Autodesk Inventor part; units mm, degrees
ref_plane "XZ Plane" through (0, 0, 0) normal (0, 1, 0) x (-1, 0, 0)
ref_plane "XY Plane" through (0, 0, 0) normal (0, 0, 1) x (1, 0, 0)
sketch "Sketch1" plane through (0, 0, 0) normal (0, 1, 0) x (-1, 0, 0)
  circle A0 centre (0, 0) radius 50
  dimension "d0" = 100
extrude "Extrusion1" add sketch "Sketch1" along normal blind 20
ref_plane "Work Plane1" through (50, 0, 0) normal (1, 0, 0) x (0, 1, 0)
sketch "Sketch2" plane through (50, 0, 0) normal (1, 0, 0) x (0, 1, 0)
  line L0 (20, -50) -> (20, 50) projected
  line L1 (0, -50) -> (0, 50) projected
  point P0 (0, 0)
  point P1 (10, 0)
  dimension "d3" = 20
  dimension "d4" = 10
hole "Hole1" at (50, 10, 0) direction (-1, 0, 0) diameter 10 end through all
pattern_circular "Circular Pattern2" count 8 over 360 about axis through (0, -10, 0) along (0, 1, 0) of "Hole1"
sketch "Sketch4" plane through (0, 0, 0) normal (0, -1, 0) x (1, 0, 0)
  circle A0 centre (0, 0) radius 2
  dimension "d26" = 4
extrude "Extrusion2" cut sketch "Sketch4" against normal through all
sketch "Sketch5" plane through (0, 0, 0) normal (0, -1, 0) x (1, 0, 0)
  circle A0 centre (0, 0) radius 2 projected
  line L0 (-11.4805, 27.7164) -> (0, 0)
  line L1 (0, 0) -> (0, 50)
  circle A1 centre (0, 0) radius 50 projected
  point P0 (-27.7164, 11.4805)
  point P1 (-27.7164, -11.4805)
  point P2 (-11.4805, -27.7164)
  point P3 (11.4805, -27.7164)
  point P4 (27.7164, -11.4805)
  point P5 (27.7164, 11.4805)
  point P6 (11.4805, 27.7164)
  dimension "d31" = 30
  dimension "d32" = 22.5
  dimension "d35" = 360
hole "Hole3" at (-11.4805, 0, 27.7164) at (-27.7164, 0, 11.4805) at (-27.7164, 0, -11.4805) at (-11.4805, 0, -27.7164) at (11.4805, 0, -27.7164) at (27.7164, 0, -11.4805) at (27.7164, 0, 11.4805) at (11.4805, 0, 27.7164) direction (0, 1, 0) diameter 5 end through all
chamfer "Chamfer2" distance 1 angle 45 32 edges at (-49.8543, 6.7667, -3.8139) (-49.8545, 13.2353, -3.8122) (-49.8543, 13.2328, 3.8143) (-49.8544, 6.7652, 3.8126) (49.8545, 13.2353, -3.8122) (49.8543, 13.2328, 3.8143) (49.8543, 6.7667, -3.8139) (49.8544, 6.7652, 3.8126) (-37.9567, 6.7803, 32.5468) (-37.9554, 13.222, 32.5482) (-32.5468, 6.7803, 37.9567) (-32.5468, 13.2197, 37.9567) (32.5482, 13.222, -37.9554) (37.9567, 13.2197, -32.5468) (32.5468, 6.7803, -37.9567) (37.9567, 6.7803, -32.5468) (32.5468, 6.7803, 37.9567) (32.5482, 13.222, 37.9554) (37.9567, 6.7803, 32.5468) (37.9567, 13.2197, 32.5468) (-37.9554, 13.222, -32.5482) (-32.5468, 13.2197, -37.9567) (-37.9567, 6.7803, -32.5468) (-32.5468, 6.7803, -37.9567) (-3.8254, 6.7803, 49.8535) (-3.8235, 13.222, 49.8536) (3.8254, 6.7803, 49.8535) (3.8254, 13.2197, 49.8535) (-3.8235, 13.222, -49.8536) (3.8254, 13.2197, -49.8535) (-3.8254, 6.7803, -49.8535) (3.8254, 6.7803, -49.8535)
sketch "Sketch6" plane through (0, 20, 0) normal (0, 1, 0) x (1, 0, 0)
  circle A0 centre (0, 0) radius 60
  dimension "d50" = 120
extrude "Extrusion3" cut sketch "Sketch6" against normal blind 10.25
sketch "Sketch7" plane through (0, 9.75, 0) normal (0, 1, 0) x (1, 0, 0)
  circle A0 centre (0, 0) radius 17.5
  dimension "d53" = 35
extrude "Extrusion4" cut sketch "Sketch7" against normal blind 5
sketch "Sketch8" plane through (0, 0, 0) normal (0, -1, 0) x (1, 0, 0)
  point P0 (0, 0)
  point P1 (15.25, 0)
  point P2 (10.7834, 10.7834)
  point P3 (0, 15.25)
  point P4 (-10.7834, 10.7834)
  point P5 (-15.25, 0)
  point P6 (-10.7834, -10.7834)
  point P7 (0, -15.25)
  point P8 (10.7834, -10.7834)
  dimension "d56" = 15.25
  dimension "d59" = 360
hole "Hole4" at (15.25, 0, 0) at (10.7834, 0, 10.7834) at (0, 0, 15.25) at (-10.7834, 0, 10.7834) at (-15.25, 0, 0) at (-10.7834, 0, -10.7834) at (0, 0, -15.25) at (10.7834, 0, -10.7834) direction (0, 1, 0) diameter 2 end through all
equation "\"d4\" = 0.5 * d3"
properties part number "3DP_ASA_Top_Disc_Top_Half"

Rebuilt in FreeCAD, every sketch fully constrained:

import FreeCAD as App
import Part
import Sketcher

V = App.Vector
Q = App.Units.Quantity


def edges_at(feature, points):
    """Names of the edges that pass closest to the given points."""
    edges = feature.Shape.Edges
    near = lambda p: min(range(len(edges)), key=lambda i: edges[i].distToShape(Part.Vertex(*p))[0])
    return sorted({f"Edge{near(p) + 1}" for p in points})

doc = App.newDocument("Part")
body = doc.addObject("PartDesign::Body", "Body")

sketch1 = body.newObject("Sketcher::SketchObject", "Sketch")
sketch1.AttachmentSupport = (doc.getObject("XZ_Plane"), [""])
sketch1.MapMode = "FlatFace"
sketch1.addGeometry(Part.Circle(V(0, 0, 0), V(0, 0, 1), 50), False)
sketch1.addConstraint(Sketcher.Constraint("Coincident", 0, 3, -1, 1))
sketch1.addConstraint(Sketcher.Constraint("Diameter", 0, Q("100 mm")))
pad1 = body.newObject("PartDesign::Pad", "Pad")
pad1.Profile = sketch1
pad1.Length = 20
pad1.Reversed = True

sketch2 = body.newObject("Sketcher::SketchObject", "Sketch001")
sketch2.AttachmentSupport = (doc.getObject("YZ_Plane"), [""])
sketch2.MapMode = "FlatFace"
sketch2.AttachmentOffset = App.Placement(V(0, 0, 50), App.Rotation())
sketch2.addGeometry(Part.Circle(V(10, 0, 0), V(0, 0, 1), 5), False)
sketch2.addConstraint(Sketcher.Constraint("PointOnObject", 0, 3, -1))
sketch2.addConstraint(Sketcher.Constraint("Diameter", 0, Q("10 mm")))
sketch2.addConstraint(Sketcher.Constraint("DistanceX", -1, 1, 0, 3, Q("10 mm")))
doc.recompute()
hole = body.newObject("PartDesign::Hole", "Hole")
hole.Profile = sketch2
hole.ThreadType = "None"
hole.Diameter = 10
hole.DepthType = "ThroughAll"
doc.recompute()

polarpattern = body.newObject("PartDesign::PolarPattern", "PolarPattern")
polarpattern.Originals = [hole]
polarpattern.Axis = (doc.getObject("Y_Axis"), [""])
polarpattern.Angle = 360
polarpattern.Occurrences = 8
body.Tip = polarpattern

sketch3 = body.newObject("Sketcher::SketchObject", "Sketch002")
sketch3.AttachmentSupport = (doc.getObject("XZ_Plane"), [""])
sketch3.MapMode = "FlatFace"
sketch3.addGeometry(Part.Circle(V(0, 0, 0), V(0, 0, 1), 2), False)
sketch3.addConstraint(Sketcher.Constraint("Coincident", 0, 3, -1, 1))
sketch3.addConstraint(Sketcher.Constraint("Diameter", 0, Q("4 mm")))
pocket1 = body.newObject("PartDesign::Pocket", "Pocket")
pocket1.Profile = sketch3
pocket1.Type = "ThroughAll"

sketch4 = body.newObject("Sketcher::SketchObject", "Sketch003")
sketch4.AttachmentSupport = (doc.getObject("XZ_Plane"), [""])
sketch4.MapMode = "FlatFace"
sketch4.addGeometry(Part.Circle(V(-11.5, 27.7, 0), V(0, 0, 1), 2.5), False)
sketch4.addGeometry(Part.Circle(V(-27.7, 11.5, 0), V(0, 0, 1), 2.5), False)
sketch4.addGeometry(Part.Circle(V(-27.7, -11.5, 0), V(0, 0, 1), 2.5), False)
sketch4.addGeometry(Part.Circle(V(-11.5, -27.7, 0), V(0, 0, 1), 2.5), False)
sketch4.addGeometry(Part.Circle(V(11.5, -27.7, 0), V(0, 0, 1), 2.5), False)
sketch4.addGeometry(Part.Circle(V(27.7, -11.5, 0), V(0, 0, 1), 2.5), False)
sketch4.addGeometry(Part.Circle(V(27.7, 11.5, 0), V(0, 0, 1), 2.5), False)
sketch4.addGeometry(Part.Circle(V(11.5, 27.7, 0), V(0, 0, 1), 2.5), False)
sketch4.addConstraint(Sketcher.Constraint("Equal", 0, 1))
sketch4.addConstraint(Sketcher.Constraint("Equal", 1, 2))
sketch4.addConstraint(Sketcher.Constraint("Equal", 2, 3))
sketch4.addConstraint(Sketcher.Constraint("Equal", 3, 4))
sketch4.addConstraint(Sketcher.Constraint("Equal", 4, 5))
sketch4.addConstraint(Sketcher.Constraint("Equal", 5, 6))
sketch4.addConstraint(Sketcher.Constraint("Equal", 6, 7))
sketch4.addConstraint(Sketcher.Constraint("Symmetric", 0, 3, 4, 3, -1, 1))
sketch4.addConstraint(Sketcher.Constraint("Symmetric", 1, 3, 5, 3, -1, 1))
sketch4.addConstraint(Sketcher.Constraint("Symmetric", 2, 3, 6, 3, -1, 1))
sketch4.addConstraint(Sketcher.Constraint("Symmetric", 3, 3, 7, 3, -1, 1))
sketch4.addConstraint(Sketcher.Constraint("Symmetric", 3, 3, 4, 3, -2))
sketch4.addConstraint(Sketcher.Constraint("Symmetric", 2, 3, 5, 3, -2))
sketch4.addConstraint(Sketcher.Constraint("Diameter", 0, Q("5 mm")))
sketch4.addConstraint(Sketcher.Constraint("DistanceX", 1, 3, 0, 3, Q("16.236 mm")))
sketch4.addConstraint(Sketcher.Constraint("DistanceY", 1, 3, 0, 3, Q("16.236 mm")))
sketch4.addConstraint(Sketcher.Constraint("DistanceY", 2, 3, 1, 3, Q("22.961 mm")))
sketch4.addConstraint(Sketcher.Constraint("DistanceX", 3, 3, 4, 3, Q("22.961 mm")))
doc.recompute()
hole2 = body.newObject("PartDesign::Hole", "Hole001")
hole2.Profile = sketch4
hole2.ThreadType = "None"
hole2.Diameter = 5
hole2.DepthType = "ThroughAll"
doc.recompute()

chamfer = body.newObject("PartDesign::Chamfer", "Chamfer")
chamfer.Base = (hole2, edges_at(hole2, [
    (-49.854, 6.767, -3.814),
    (-49.855, 13.235, -3.812),
    (-49.854, 13.233, 3.814),
    (-49.854, 6.765, 3.813),
    (49.855, 13.235, -3.812),
    (49.854, 13.233, 3.814),
    (49.854, 6.767, -3.814),
    (49.854, 6.765, 3.813),
    (-37.957, 6.78, 32.547),
    (-37.955, 13.222, 32.548),
    (-32.547, 6.78, 37.957),
    (-32.547, 13.22, 37.957),
    (32.548, 13.222, -37.955),
    (37.957, 13.22, -32.547),
    (32.547, 6.78, -37.957),
    (37.957, 6.78, -32.547),
    (32.547, 6.78, 37.957),
    (32.548, 13.222, 37.955),
    (37.957, 6.78, 32.547),
    (37.957, 13.22, 32.547),
    (-37.955, 13.222, -32.548),
    (-32.547, 13.22, -37.957),
    (-37.957, 6.78, -32.547),
    (-32.547, 6.78, -37.957),
    (-3.825, 6.78, 49.853),
    (-3.824, 13.222, 49.854),
    (3.825, 6.78, 49.853),
    (3.825, 13.22, 49.853),
    (-3.824, 13.222, -49.854),
    (3.825, 13.22, -49.853),
    (-3.825, 6.78, -49.853),
    (3.825, 6.78, -49.853),
]))
chamfer.Size = 1

sketch5 = body.newObject("Sketcher::SketchObject", "Sketch004")
sketch5.AttachmentSupport = (doc.getObject("XZ_Plane"), [""])
sketch5.MapMode = "FlatFace"
sketch5.AttachmentOffset = App.Placement(V(0, 0, -20), App.Rotation())
sketch5.addGeometry(Part.Circle(V(0, 0, 0), V(0, 0, 1), 60), False)
sketch5.addConstraint(Sketcher.Constraint("Coincident", 0, 3, -1, 1))
sketch5.addConstraint(Sketcher.Constraint("Diameter", 0, Q("120 mm")))
pocket2 = body.newObject("PartDesign::Pocket", "Pocket001")
pocket2.Profile = sketch5
pocket2.Length = 10.25
pocket2.Reversed = True

sketch6 = body.newObject("Sketcher::SketchObject", "Sketch005")
sketch6.AttachmentSupport = (doc.getObject("XZ_Plane"), [""])
sketch6.MapMode = "FlatFace"
sketch6.AttachmentOffset = App.Placement(V(0, 0, -9.75), App.Rotation())
sketch6.addGeometry(Part.Circle(V(0, 0, 0), V(0, 0, 1), 18), False)
sketch6.addConstraint(Sketcher.Constraint("Coincident", 0, 3, -1, 1))
sketch6.addConstraint(Sketcher.Constraint("Diameter", 0, Q("35 mm")))
pocket3 = body.newObject("PartDesign::Pocket", "Pocket002")
pocket3.Profile = sketch6
pocket3.Length = 5
pocket3.Reversed = True

sketch7 = body.newObject("Sketcher::SketchObject", "Sketch006")
sketch7.AttachmentSupport = (doc.getObject("XZ_Plane"), [""])
sketch7.MapMode = "FlatFace"
sketch7.addGeometry(Part.Circle(V(15.2, 0, 0), V(0, 0, 1), 1), False)
sketch7.addGeometry(Part.Circle(V(10.8, 10.8, 0), V(0, 0, 1), 1), False)
sketch7.addGeometry(Part.Circle(V(0, 15.2, 0), V(0, 0, 1), 1), False)
sketch7.addGeometry(Part.Circle(V(-10.8, 10.8, 0), V(0, 0, 1), 1), False)
sketch7.addGeometry(Part.Circle(V(-15.2, 0, 0), V(0, 0, 1), 1), False)
sketch7.addGeometry(Part.Circle(V(-10.8, -10.8, 0), V(0, 0, 1), 1), False)
sketch7.addGeometry(Part.Circle(V(0, -15.2, 0), V(0, 0, 1), 1), False)
sketch7.addGeometry(Part.Circle(V(10.8, -10.8, 0), V(0, 0, 1), 1), False)
sketch7.addConstraint(Sketcher.Constraint("Equal", 0, 1))
sketch7.addConstraint(Sketcher.Constraint("Equal", 1, 2))
sketch7.addConstraint(Sketcher.Constraint("Equal", 2, 3))
sketch7.addConstraint(Sketcher.Constraint("Equal", 3, 4))
sketch7.addConstraint(Sketcher.Constraint("Equal", 4, 5))
sketch7.addConstraint(Sketcher.Constraint("Equal", 5, 6))
sketch7.addConstraint(Sketcher.Constraint("Equal", 6, 7))
sketch7.addConstraint(Sketcher.Constraint("Symmetric", 0, 3, 4, 3, -1, 1))
sketch7.addConstraint(Sketcher.Constraint("Symmetric", 1, 3, 5, 3, -1, 1))
sketch7.addConstraint(Sketcher.Constraint("Symmetric", 2, 3, 6, 3, -1, 1))
sketch7.addConstraint(Sketcher.Constraint("Symmetric", 3, 3, 7, 3, -1, 1))
sketch7.addConstraint(Sketcher.Constraint("Symmetric", 1, 3, 3, 3, -2))
sketch7.addConstraint(Sketcher.Constraint("PointOnObject", 0, 3, -1))
sketch7.addConstraint(Sketcher.Constraint("PointOnObject", 2, 3, -2))
sketch7.addConstraint(Sketcher.Constraint("Diameter", 0, Q("2 mm")))
sketch7.addConstraint(Sketcher.Constraint("DistanceX", 4, 3, 0, 3, Q("30.5 mm")))
sketch7.addConstraint(Sketcher.Constraint("DistanceY", -1, 1, 2, 3, Q("15.25 mm")))
sketch7.addConstraint(Sketcher.Constraint("DistanceX", -1, 1, 1, 3, Q("10.7834 mm")))
sketch7.addConstraint(Sketcher.Constraint("DistanceY", -1, 1, 1, 3, Q("10.7834 mm")))
doc.recompute()
hole3 = body.newObject("PartDesign::Hole", "Hole002")
hole3.Profile = sketch7
hole3.ThreadType = "None"
hole3.Diameter = 2
hole3.DepthType = "ThroughAll"

doc.recompute()
